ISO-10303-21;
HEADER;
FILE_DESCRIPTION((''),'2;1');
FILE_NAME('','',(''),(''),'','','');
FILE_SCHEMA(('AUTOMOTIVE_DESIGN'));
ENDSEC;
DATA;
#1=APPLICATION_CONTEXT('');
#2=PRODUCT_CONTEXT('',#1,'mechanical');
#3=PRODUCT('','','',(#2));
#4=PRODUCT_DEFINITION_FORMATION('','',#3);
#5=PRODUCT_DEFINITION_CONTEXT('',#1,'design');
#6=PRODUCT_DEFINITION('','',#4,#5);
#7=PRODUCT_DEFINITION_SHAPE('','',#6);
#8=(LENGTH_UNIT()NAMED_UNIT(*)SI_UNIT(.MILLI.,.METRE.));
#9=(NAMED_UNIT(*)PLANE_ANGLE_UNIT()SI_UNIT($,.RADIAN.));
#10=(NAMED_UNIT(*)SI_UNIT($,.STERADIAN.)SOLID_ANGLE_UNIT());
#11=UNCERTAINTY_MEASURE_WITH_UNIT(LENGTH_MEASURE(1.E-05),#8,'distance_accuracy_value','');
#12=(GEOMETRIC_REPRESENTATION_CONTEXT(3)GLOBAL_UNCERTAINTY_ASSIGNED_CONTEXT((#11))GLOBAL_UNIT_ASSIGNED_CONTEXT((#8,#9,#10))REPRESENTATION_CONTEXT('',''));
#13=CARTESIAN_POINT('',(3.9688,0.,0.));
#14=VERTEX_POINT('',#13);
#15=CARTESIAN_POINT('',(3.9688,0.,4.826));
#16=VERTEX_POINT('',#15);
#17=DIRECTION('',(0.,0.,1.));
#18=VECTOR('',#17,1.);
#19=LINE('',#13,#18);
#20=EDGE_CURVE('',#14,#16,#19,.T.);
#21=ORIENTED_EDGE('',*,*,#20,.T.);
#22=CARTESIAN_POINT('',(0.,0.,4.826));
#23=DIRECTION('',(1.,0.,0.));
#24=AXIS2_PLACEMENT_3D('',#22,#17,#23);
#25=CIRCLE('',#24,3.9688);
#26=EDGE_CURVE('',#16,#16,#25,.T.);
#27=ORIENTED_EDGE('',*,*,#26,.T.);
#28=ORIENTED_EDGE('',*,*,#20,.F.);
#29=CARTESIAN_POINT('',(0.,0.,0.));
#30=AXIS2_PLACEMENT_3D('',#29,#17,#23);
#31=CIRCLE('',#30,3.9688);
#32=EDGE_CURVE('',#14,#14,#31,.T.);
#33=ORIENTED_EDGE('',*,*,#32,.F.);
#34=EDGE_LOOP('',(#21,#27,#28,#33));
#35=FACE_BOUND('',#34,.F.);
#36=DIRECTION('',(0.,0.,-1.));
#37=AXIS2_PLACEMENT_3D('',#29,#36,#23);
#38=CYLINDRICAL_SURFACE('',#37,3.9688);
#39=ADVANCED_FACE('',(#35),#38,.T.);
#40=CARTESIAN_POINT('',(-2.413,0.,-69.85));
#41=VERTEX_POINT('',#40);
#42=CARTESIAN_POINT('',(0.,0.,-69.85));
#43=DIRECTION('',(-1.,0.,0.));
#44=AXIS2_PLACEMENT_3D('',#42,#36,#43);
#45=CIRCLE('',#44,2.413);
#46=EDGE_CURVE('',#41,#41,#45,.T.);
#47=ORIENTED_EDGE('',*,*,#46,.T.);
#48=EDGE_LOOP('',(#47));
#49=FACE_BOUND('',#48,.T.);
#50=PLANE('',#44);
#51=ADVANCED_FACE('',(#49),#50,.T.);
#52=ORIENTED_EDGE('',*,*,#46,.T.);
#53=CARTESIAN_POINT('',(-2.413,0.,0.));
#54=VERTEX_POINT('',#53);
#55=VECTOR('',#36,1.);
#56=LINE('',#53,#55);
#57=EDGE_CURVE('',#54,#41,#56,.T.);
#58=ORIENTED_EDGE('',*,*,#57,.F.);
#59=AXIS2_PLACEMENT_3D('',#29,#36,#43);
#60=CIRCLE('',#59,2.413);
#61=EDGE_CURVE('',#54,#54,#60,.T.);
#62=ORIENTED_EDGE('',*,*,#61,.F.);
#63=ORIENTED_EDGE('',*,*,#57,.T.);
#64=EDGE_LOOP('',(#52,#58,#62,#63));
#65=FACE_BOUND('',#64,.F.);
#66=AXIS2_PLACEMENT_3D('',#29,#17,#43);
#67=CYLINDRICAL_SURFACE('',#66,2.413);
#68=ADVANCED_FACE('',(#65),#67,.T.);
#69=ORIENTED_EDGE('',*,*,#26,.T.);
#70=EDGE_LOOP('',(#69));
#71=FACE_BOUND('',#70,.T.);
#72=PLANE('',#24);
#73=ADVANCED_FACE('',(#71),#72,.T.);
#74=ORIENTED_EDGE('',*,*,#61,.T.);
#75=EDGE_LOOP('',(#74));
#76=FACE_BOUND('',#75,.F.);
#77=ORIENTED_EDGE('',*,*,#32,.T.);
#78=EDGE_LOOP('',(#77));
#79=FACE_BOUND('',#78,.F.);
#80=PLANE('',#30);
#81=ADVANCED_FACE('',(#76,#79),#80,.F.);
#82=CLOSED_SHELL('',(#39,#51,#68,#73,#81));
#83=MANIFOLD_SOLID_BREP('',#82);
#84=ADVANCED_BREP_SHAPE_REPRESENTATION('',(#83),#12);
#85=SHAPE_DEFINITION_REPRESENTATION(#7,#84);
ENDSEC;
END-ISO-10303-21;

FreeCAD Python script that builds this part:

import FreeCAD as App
import Part
import Sketcher

V = App.Vector
Q = App.Units.Quantity

doc = App.newDocument("Part")
params = doc.addObject("Spreadsheet::Sheet", "Params")
for row, (alias, value) in enumerate([
    ("sketch1_diameter", "0.3125 in"),
    ("pad1_length", "0.19 in"),
    ("sketch2_diameter", "0.19 in"),
    ("pad2_length", "2.75 in"),
], start=1):
    params.set(f"A{row}", alias)
    params.set(f"B{row}", "=" + value)
    params.setAlias(f"B{row}", alias)

body = doc.addObject("PartDesign::Body", "Body")

# Sketch on XY plane
sketch1 = body.newObject("Sketcher::SketchObject", "Sketch")
sketch1.AttachmentSupport = (doc.getObject("XY_Plane"), [""])
sketch1.MapMode = "FlatFace"
sketch1.addGeometry(Part.Circle(V(0, 0, 0), V(0, 0, 1), 4), False)
sketch1.addConstraint(Sketcher.Constraint("Coincident", 0, 3, -1, 1))
sketch1.addConstraint(Sketcher.Constraint("Diameter", 0, Q("0.3125 in")))
sketch1.setExpression("Constraints[1]", "Params.sketch1_diameter")
pad1 = body.newObject("PartDesign::Pad", "Pad")
pad1.Profile = sketch1
pad1.setExpression("Length", "Params.pad1_length")

# Sketch on XY plane
sketch2 = body.newObject("Sketcher::SketchObject", "Sketch001")
sketch2.AttachmentSupport = (doc.getObject("XY_Plane"), [""])
sketch2.MapMode = "FlatFace"
sketch2.addGeometry(Part.Circle(V(0, 0, 0), V(0, 0, 1), 2.4), False)
sketch2.addConstraint(Sketcher.Constraint("Coincident", 0, 3, -1, 1))
sketch2.addConstraint(Sketcher.Constraint("Diameter", 0, Q("0.19 in")))
sketch2.setExpression("Constraints[1]", "Params.sketch2_diameter")
pad2 = body.newObject("PartDesign::Pad", "Pad001")
pad2.Profile = sketch2
pad2.setExpression("Length", "Params.pad2_length")
pad2.Reversed = True

doc.recompute()
